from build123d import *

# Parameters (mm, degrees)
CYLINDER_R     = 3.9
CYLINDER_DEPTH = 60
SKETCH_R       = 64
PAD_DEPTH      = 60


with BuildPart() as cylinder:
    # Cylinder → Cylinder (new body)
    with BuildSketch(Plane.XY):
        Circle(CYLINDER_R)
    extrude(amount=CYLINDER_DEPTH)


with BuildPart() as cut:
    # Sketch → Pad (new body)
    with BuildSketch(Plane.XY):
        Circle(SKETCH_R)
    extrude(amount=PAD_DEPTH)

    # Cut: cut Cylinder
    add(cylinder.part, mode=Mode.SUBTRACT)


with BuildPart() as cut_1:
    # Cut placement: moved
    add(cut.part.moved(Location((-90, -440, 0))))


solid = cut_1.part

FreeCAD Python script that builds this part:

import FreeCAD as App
import Part
import Sketcher
from FreeCAD import Vector
Q = App.Units.Quantity

doc = App.newDocument("Part")
params = doc.addObject("Spreadsheet::Sheet", "Params")
for row, (alias, value) in enumerate([
    ("sketch1_diameter", "7.8 mm"),
    ("pad1_length", "60 mm"),
    ("sketch2_diameter", "128 mm"),
    ("pad2_length", "60 mm"),
], start=1):
    params.set(f"A{row}", alias)
    params.set(f"B{row}", "=" + value)
    params.setAlias(f"B{row}", alias)

body = doc.addObject("PartDesign::Body", "Body")

# Sketch on XY plane
sketch1 = body.newObject("Sketcher::SketchObject", "Sketch")
sketch1.AttachmentSupport = (doc.getObject("XY_Plane"), [""])
sketch1.MapMode = "FlatFace"
sketch1.addGeometry(Part.Circle(Vector(0, 0, 0), Vector(0, 0, 1), 3.9), False)
sketch1.addConstraint([
    Sketcher.Constraint("Coincident", 0, 3, -1, 1),
    Sketcher.Constraint("Diameter", 0, Q("7.8 mm")),
])
sketch1.setExpression("Constraints[1]", "Params.sketch1_diameter")
pad1 = body.newObject("PartDesign::Pad", "Pad")
pad1.Profile = sketch1
pad1.setExpression("Length", "Params.pad1_length")
body2 = doc.addObject("PartDesign::Body", "Body001")

# Sketch on XY plane
sketch2 = body2.newObject("Sketcher::SketchObject", "Sketch001")
sketch2.AttachmentSupport = (doc.getObject("XY_Plane001"), [""])
sketch2.MapMode = "FlatFace"
sketch2.addGeometry(Part.Circle(Vector(0, 0, 0), Vector(0, 0, 1), 64), False)
sketch2.addConstraint([
    Sketcher.Constraint("Coincident", 0, 3, -1, 1),
    Sketcher.Constraint("Diameter", 0, Q("128 mm")),
])
sketch2.setExpression("Constraints[1]", "Params.sketch2_diameter")
pad2 = body2.newObject("PartDesign::Pad", "Pad001")
pad2.Profile = sketch2
pad2.setExpression("Length", "Params.pad2_length")
doc.recompute()

boolean = body2.newObject("PartDesign::Boolean", "Boolean")
boolean.Type = "Cut"
boolean.addObjects([body])
body3 = doc.addObject("PartDesign::Body", "Body002")
doc.recompute()

body2.Placement = App.Placement(Vector(-90, -440, 0), App.Rotation(Vector(0, 0, 1), 0))
boolean2 = body3.newObject("PartDesign::Boolean", "Boolean001")
boolean2.Type = "Fuse"
boolean2.addObjects([body2])

doc.recompute()
